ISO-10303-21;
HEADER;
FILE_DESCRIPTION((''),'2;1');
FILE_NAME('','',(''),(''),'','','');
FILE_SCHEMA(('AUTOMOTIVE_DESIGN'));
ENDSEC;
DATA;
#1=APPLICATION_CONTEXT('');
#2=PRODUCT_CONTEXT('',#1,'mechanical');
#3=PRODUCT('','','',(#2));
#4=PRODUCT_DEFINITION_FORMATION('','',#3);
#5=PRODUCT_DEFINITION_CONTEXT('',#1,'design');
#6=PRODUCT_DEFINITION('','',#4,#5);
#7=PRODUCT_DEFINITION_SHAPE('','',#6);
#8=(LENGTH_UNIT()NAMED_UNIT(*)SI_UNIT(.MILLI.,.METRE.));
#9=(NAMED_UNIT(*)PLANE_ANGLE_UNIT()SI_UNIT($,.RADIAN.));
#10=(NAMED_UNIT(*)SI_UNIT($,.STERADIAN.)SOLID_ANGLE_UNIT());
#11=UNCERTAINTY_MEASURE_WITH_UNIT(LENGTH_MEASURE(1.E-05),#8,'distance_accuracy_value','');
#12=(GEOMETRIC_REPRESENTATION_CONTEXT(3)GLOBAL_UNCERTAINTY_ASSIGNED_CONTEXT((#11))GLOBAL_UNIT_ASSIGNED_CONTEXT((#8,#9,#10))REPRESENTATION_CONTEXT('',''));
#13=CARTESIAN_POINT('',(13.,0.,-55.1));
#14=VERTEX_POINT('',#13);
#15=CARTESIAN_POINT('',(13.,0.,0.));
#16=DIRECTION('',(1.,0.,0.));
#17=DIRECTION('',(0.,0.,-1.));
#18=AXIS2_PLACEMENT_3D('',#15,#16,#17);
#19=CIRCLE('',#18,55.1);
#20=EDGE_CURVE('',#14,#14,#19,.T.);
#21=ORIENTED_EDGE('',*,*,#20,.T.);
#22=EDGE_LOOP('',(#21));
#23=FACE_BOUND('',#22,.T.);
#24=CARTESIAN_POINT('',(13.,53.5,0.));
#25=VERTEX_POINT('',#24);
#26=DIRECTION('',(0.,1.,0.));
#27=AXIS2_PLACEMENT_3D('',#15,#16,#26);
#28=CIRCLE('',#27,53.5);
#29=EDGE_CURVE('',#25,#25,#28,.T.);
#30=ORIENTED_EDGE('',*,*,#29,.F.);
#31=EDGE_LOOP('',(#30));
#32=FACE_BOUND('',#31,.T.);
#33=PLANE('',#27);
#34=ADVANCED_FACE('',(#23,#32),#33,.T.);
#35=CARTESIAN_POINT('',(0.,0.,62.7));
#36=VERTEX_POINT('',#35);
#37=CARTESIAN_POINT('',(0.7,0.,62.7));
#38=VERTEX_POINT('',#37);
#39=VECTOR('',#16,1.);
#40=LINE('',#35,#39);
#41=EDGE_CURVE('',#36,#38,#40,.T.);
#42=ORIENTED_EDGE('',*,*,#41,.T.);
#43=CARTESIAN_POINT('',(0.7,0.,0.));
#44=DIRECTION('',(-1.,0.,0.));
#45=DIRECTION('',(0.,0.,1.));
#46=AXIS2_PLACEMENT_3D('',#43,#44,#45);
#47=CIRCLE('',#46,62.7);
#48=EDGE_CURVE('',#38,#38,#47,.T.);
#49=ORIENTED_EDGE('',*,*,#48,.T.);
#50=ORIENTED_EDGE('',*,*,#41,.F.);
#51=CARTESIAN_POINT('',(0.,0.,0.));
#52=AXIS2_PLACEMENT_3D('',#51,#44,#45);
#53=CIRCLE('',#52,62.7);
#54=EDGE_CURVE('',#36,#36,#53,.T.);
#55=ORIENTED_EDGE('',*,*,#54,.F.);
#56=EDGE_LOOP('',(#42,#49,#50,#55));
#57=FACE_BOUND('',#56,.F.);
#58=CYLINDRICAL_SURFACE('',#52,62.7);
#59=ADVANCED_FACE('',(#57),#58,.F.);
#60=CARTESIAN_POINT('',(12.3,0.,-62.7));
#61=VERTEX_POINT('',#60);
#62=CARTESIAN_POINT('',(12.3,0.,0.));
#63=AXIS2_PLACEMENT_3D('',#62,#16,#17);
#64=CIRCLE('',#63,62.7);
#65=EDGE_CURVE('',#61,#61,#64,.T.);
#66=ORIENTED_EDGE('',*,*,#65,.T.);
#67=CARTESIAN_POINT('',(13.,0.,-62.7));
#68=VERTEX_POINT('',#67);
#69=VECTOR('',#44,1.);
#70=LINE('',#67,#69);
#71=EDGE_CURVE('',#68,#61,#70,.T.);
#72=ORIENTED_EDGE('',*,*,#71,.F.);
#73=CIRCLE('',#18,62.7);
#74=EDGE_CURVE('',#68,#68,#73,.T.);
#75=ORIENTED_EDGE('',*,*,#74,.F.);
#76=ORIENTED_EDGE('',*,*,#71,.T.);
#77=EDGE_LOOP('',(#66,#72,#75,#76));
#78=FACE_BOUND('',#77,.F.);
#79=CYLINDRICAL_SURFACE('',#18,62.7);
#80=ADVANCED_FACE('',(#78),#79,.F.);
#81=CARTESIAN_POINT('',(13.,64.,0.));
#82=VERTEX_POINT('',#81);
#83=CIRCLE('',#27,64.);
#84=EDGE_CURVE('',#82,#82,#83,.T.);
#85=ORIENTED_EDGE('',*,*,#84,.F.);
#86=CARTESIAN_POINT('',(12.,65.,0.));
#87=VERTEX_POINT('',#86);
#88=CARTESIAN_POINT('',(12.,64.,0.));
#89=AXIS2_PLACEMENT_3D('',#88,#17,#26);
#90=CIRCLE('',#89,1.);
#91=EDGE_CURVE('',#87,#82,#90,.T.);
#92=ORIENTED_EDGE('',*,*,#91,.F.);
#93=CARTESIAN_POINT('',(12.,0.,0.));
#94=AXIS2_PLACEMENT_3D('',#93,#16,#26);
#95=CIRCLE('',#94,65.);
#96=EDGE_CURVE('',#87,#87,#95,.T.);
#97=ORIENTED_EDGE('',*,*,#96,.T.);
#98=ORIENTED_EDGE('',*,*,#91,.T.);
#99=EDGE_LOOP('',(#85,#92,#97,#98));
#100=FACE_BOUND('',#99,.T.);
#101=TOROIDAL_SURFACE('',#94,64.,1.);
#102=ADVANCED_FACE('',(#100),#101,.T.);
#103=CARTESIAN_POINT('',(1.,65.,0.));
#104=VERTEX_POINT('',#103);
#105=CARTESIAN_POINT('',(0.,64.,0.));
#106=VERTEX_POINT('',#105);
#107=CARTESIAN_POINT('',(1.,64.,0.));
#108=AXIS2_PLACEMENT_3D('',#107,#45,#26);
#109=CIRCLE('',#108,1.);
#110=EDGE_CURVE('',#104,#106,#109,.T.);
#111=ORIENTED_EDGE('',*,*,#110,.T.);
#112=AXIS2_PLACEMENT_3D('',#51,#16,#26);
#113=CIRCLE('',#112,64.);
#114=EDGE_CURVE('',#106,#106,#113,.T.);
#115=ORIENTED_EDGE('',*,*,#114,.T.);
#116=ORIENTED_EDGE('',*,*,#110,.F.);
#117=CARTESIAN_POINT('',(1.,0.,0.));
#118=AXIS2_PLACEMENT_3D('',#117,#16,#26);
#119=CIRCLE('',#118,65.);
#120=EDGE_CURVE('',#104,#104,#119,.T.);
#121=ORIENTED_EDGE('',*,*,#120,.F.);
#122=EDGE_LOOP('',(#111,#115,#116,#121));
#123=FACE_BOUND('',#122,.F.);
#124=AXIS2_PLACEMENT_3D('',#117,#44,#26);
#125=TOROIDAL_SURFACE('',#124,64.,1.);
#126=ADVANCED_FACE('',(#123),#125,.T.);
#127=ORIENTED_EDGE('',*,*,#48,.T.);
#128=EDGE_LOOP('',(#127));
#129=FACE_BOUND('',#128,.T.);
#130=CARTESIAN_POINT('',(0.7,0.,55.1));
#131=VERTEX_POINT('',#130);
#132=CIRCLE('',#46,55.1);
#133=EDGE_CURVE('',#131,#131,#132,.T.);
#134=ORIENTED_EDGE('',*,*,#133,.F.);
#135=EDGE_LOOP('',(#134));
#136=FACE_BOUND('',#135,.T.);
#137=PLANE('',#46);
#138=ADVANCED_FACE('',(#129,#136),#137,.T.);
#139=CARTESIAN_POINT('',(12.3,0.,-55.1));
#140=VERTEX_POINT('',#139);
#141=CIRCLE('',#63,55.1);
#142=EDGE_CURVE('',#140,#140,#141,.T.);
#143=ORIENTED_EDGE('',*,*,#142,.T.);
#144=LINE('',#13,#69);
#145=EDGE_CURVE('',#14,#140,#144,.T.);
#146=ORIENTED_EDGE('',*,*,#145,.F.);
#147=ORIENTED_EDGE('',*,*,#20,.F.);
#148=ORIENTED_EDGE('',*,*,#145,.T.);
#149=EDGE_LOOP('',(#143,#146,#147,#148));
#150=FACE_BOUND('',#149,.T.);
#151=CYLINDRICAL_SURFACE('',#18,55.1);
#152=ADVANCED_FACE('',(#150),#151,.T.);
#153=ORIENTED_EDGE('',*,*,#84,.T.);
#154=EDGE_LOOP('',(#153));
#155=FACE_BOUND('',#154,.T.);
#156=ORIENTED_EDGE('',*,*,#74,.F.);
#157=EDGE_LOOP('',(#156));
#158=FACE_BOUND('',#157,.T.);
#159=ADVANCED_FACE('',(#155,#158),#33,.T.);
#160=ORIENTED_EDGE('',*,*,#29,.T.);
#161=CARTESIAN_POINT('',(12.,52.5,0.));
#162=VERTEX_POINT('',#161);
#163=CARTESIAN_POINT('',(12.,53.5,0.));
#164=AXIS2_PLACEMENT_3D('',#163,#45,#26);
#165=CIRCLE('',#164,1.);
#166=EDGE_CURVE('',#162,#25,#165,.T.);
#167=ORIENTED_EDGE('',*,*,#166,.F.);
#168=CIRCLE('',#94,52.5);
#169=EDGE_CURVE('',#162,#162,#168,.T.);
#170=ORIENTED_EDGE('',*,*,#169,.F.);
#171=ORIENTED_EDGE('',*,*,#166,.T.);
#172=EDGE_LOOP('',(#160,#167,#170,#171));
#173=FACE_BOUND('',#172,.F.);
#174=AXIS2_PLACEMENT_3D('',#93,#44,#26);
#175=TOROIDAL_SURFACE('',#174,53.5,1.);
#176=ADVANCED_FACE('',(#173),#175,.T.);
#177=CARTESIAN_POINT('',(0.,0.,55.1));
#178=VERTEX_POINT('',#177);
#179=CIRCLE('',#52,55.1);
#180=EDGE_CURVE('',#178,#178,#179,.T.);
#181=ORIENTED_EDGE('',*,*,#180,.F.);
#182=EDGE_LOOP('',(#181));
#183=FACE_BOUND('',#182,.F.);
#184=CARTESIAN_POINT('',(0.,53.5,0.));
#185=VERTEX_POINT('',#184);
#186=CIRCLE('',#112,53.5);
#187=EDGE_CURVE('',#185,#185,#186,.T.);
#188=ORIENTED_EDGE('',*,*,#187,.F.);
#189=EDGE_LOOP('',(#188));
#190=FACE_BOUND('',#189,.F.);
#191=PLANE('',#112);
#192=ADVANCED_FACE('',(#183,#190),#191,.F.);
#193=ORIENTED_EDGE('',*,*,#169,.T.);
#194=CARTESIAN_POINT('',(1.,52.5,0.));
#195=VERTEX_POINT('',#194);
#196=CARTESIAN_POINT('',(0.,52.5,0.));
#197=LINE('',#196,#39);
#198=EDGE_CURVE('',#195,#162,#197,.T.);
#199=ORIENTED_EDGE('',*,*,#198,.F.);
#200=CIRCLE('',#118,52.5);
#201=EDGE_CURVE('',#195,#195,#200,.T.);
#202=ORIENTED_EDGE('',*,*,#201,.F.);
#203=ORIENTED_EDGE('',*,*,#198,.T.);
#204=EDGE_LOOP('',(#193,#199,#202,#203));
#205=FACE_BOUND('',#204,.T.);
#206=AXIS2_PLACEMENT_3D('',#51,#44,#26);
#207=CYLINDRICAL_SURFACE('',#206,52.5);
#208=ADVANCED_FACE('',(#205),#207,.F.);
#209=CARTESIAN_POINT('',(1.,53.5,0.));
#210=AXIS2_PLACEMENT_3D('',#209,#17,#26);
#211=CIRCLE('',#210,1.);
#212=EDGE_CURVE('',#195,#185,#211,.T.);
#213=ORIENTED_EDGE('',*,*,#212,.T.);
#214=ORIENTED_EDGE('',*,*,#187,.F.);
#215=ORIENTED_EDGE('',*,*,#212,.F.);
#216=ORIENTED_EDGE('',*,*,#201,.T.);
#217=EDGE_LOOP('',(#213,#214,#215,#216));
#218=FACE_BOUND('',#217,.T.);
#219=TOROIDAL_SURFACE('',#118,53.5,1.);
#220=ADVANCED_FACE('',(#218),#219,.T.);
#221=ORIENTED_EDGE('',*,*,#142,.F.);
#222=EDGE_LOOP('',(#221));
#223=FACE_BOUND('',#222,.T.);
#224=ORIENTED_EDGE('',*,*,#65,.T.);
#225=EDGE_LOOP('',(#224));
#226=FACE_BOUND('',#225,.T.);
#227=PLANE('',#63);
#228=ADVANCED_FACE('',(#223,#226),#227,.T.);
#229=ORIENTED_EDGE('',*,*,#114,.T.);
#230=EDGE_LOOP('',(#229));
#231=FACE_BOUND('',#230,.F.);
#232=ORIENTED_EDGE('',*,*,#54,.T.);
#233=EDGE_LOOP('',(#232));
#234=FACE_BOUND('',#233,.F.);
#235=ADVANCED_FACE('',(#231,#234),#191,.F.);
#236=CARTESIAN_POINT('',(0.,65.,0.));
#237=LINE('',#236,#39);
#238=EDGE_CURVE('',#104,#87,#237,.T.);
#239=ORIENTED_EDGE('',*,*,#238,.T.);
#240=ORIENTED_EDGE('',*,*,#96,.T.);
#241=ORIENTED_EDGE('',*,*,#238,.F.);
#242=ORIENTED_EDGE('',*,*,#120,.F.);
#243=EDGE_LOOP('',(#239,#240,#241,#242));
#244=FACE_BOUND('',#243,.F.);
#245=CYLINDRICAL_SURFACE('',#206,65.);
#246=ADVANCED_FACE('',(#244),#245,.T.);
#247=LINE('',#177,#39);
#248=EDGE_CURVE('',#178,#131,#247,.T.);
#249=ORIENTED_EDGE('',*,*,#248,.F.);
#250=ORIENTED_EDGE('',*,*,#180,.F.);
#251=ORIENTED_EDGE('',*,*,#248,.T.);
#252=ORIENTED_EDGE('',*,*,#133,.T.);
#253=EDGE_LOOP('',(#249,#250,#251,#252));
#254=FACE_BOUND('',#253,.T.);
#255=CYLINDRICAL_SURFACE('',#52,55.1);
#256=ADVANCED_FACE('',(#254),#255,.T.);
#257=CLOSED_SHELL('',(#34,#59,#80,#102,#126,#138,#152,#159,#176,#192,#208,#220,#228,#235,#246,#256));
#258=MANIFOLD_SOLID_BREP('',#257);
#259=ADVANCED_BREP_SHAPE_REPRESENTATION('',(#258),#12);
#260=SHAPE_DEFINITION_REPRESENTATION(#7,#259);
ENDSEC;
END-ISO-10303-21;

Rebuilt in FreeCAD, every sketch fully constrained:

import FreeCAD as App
import Part
import Sketcher

V = App.Vector
Q = App.Units.Quantity


def edges_at(feature, points):
    """Names of the edges that pass closest to the given points."""
    edges = feature.Shape.Edges
    near = lambda p: min(range(len(edges)), key=lambda i: edges[i].distToShape(Part.Vertex(*p))[0])
    return sorted({f"Edge{near(p) + 1}" for p in points})

doc = App.newDocument("Part")
body = doc.addObject("PartDesign::Body", "Body")

sketch1 = body.newObject("Sketcher::SketchObject", "Sketch")
sketch1.AttachmentSupport = (doc.getObject("YZ_Plane"), [""])
sketch1.MapMode = "FlatFace"
sketch1.addGeometry([
    Part.Circle(V(0, 0, 0), V(0, 0, 1), 65),
    Part.Circle(V(0, 0, 0), V(0, 0, 1), 52.5),
], False)
sketch1.addConstraint([
    Sketcher.Constraint("Coincident", 0, 3, -1, 1),
    Sketcher.Constraint("Coincident", 1, 3, -1, 1),
    Sketcher.Constraint("Diameter", 0, Q("130 mm")),
    Sketcher.Constraint("Diameter", 1, Q("105 mm")),
])
pad1 = body.newObject("PartDesign::Pad", "Pad")
pad1.Profile = sketch1
pad1.Length = 13
doc.recompute()

fillet = body.newObject("PartDesign::Fillet", "Fillet")
fillet.Base = (pad1, edges_at(pad1, [
    (13, -65, 0),
    (0, -65, 0),
    (13, -52.5, 0),
    (0, -52.5, 0),
]))
fillet.Radius = 1

sketch2 = body.newObject("Sketcher::SketchObject", "Sketch001")
sketch2.AttachmentSupport = (doc.getObject("YZ_Plane"), [""])
sketch2.MapMode = "FlatFace"
sketch2.AttachmentOffset = App.Placement(V(0, 0, 13), App.Rotation())
sketch2.addGeometry([
    Part.Circle(V(0, 0, 0), V(0, 0, 1), 62.7),
    Part.Circle(V(0, 0, 0), V(0, 0, 1), 55.1),
], False)
sketch2.addConstraint([
    Sketcher.Constraint("Coincident", 0, 3, -1, 1),
    Sketcher.Constraint("Coincident", 1, 3, -1, 1),
    Sketcher.Constraint("Diameter", 0, Q("125.4 mm")),
    Sketcher.Constraint("Diameter", 1, Q("110.2 mm")),
])
pocket1 = body.newObject("PartDesign::Pocket", "Pocket")
pocket1.Profile = sketch2
pocket1.Length = 0.7

sketch3 = body.newObject("Sketcher::SketchObject", "Sketch002")
sketch3.AttachmentSupport = (doc.getObject("YZ_Plane"), [""])
sketch3.MapMode = "FlatFace"
sketch3.addGeometry([
    Part.Circle(V(0, 0, 0), V(0, 0, 1), 62.7),
    Part.Circle(V(0, 0, 0), V(0, 0, 1), 55.1),
], False)
sketch3.addConstraint([
    Sketcher.Constraint("Coincident", 0, 3, -1, 1),
    Sketcher.Constraint("Coincident", 1, 3, -1, 1),
    Sketcher.Constraint("Diameter", 0, Q("125.4 mm")),
    Sketcher.Constraint("Diameter", 1, Q("110.2 mm")),
])
pocket2 = body.newObject("PartDesign::Pocket", "Pocket001")
pocket2.Profile = sketch3
pocket2.Length = 0.7
pocket2.Reversed = True

doc.recompute()
